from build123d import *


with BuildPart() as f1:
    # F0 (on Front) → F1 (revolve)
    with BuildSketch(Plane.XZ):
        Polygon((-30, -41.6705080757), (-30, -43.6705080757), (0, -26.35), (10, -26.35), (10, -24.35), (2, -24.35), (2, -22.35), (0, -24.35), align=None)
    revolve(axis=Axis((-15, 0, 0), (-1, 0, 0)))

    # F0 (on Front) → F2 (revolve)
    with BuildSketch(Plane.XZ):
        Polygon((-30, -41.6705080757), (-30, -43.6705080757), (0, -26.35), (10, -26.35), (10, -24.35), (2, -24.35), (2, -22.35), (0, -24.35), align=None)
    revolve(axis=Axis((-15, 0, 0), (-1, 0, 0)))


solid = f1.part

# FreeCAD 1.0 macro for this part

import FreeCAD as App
import Part
import Sketcher
Q = App.Units.Quantity


def add_polygon(sketch, points):
    """Adds a closed chain of lines whose ends are joined by coincident constraints."""
    first, n = sketch.GeometryCount, len(points)
    for a, b in zip(points, points[1:] + points[:1]):
        sketch.addGeometry(Part.LineSegment(App.Vector(*a, 0), App.Vector(*b, 0)), False)
    for i in range(n):
        sketch.addConstraint(Sketcher.Constraint("Coincident", first + i, 2, first + (i + 1) % n, 1))

doc = App.newDocument("Part")
body = doc.addObject("PartDesign::Body", "Body")

# Sketch on XZ plane
sketch1 = body.newObject("Sketcher::SketchObject", "Sketch")
sketch1.AttachmentSupport = (doc.getObject("XZ_Plane"), [""])
sketch1.MapMode = "FlatFace"
add_polygon(sketch1, [(-30, -41.670508), (-30, -43.670508), (0, -26.35), (10, -26.35), (10, -24.35), (2, -24.35), (2, -22.35), (0, -24.35)])  # lines 0-7
sketch1.addConstraint([
    Sketcher.Constraint("Vertical", 0),
    Sketcher.Constraint("Horizontal", 2),
    Sketcher.Constraint("Vertical", 3),
    Sketcher.Constraint("Horizontal", 4),
    Sketcher.Constraint("Vertical", 5),
    Sketcher.Constraint("PointOnObject", 1, 2, -2),
    Sketcher.Constraint("PointOnObject", 6, 2, -2),
    Sketcher.Constraint("Parallel", 1, 7),
    Sketcher.Constraint("Horizontal", 4, 2, 6, 2),
    Sketcher.Constraint("Equal", 3, 5),
    Sketcher.Constraint("DistanceX", 2, 1, 2, 2, Q("10 mm")),
    Sketcher.Constraint("DistanceX", 4, 2, 4, 1, Q("8 mm")),
    Sketcher.Constraint("DistanceY", 0, 2, 0, 1, Q("2 mm")),
    Sketcher.Constraint("Angle", 1, Q("30 deg")),
    Sketcher.Constraint("DistanceX", 0, 2, -1, 1, Q("30 mm")),
    Sketcher.Constraint("DistanceY", 1, 2, -1, 1, Q("26.35 mm")),
])
revolution = body.newObject("PartDesign::Revolution", "Revolution")
revolution.Profile = sketch1
revolution.ReferenceAxis = (sketch1, ["H_Axis"])
revolution.Angle = 360

# Sketch on XZ plane
sketch2 = body.newObject("Sketcher::SketchObject", "Sketch001")
sketch2.AttachmentSupport = (doc.getObject("XZ_Plane"), [""])
sketch2.MapMode = "FlatFace"
add_polygon(sketch2, [(-30, -41.670508), (-30, -43.670508), (0, -26.35), (10, -26.35), (10, -24.35), (2, -24.35), (2, -22.35), (0, -24.35)])  # lines 0-7
sketch2.addConstraint([
    Sketcher.Constraint("Vertical", 0),
    Sketcher.Constraint("Horizontal", 2),
    Sketcher.Constraint("Vertical", 3),
    Sketcher.Constraint("Horizontal", 4),
    Sketcher.Constraint("Vertical", 5),
    Sketcher.Constraint("PointOnObject", 1, 2, -2),
    Sketcher.Constraint("PointOnObject", 6, 2, -2),
    Sketcher.Constraint("Parallel", 1, 7),
    Sketcher.Constraint("Horizontal", 4, 2, 6, 2),
    Sketcher.Constraint("Equal", 3, 5),
    Sketcher.Constraint("DistanceX", 2, 1, 2, 2, Q("10 mm")),
    Sketcher.Constraint("DistanceX", 4, 2, 4, 1, Q("8 mm")),
    Sketcher.Constraint("DistanceY", 0, 2, 0, 1, Q("2 mm")),
    Sketcher.Constraint("Angle", 1, Q("30 deg")),
    Sketcher.Constraint("DistanceX", 0, 2, -1, 1, Q("30 mm")),
    Sketcher.Constraint("DistanceY", 1, 2, -1, 1, Q("26.35 mm")),
])
revolution2 = body.newObject("PartDesign::Revolution", "Revolution001")
revolution2.Profile = sketch2
revolution2.ReferenceAxis = (sketch2, ["H_Axis"])
revolution2.Angle = 360

doc.recompute()
